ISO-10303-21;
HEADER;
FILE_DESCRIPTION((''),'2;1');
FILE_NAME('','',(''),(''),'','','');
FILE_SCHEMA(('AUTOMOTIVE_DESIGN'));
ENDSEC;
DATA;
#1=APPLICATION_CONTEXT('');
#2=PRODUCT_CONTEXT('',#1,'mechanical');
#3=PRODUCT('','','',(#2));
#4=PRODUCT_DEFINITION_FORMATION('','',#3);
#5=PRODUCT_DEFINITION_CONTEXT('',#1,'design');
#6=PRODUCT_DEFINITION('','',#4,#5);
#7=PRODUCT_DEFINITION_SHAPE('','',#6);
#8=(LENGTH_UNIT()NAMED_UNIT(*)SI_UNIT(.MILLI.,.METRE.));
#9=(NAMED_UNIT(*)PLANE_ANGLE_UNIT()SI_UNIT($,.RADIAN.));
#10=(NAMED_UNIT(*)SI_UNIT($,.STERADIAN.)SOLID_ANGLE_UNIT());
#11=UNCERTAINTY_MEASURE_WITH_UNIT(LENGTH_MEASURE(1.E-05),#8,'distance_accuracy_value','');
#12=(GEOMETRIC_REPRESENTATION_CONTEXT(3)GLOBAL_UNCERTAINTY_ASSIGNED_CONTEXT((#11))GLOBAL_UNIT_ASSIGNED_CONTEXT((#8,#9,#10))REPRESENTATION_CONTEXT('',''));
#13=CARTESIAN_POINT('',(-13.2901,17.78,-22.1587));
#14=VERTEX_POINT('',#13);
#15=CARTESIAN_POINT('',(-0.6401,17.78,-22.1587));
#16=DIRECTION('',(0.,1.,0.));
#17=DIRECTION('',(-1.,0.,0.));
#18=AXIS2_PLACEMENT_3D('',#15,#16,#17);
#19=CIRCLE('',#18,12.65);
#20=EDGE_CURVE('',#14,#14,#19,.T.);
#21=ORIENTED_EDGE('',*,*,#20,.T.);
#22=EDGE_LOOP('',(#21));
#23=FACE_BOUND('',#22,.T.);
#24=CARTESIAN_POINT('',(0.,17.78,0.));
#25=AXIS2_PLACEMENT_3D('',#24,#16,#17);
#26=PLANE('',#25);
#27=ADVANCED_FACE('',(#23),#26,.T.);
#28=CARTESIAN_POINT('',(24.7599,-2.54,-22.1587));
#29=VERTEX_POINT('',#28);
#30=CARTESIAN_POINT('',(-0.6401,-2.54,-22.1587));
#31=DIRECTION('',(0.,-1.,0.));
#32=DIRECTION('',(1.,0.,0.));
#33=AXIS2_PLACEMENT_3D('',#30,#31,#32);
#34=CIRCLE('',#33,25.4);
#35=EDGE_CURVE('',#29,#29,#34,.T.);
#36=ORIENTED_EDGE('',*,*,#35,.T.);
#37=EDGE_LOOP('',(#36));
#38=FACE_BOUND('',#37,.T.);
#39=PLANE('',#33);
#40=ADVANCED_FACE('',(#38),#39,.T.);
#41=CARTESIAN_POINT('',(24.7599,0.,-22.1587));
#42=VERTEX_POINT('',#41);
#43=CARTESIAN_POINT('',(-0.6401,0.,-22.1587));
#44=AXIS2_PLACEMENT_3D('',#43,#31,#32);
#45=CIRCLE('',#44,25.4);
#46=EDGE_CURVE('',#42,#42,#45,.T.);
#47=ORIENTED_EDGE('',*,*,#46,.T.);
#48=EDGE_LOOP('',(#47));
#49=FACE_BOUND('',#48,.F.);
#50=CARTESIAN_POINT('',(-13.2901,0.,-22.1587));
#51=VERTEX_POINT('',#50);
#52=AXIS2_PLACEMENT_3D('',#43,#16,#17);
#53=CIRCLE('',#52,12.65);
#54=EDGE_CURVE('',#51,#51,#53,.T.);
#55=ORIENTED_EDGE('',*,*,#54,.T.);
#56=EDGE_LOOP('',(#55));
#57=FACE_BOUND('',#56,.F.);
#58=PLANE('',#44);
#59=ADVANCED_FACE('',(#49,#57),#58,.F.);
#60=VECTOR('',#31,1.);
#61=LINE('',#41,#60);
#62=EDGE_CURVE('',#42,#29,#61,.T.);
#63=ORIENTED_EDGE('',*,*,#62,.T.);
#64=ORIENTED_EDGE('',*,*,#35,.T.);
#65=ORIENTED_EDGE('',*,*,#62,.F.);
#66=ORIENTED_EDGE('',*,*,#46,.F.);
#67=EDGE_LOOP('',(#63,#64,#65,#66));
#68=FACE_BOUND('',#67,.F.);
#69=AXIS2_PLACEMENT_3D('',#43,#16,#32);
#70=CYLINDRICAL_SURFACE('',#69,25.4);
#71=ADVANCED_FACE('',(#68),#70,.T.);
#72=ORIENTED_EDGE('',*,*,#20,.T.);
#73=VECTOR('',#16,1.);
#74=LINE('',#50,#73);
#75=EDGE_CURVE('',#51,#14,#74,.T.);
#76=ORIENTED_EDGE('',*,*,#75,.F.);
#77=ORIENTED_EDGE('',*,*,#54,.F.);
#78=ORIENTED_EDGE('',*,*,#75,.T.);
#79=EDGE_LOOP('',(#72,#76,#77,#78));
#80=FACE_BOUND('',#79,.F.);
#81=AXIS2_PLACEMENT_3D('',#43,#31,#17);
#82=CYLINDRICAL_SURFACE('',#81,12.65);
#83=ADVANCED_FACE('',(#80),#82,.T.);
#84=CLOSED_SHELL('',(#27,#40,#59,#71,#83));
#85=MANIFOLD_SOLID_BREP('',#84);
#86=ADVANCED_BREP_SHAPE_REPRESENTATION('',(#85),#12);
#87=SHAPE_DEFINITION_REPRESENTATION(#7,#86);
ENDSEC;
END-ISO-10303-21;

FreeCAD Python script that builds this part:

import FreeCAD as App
import Part
import Sketcher
from FreeCAD import Vector
Q = App.Units.Quantity

doc = App.newDocument("Part")
body = doc.addObject("PartDesign::Body", "Body")

# Sketch on XZ plane
sketch1 = body.newObject("Sketcher::SketchObject", "Sketch")
sketch1.AttachmentSupport = (doc.getObject("XZ_Plane"), [""])
sketch1.MapMode = "FlatFace"
sketch1.addGeometry(Part.Circle(Vector(-1, -22, 0), Vector(0, 0, 1), 13), False)
sketch1.addConstraint(Sketcher.Constraint("Diameter", 0, 25.3))
sketch1.addConstraint(Sketcher.Constraint("DistanceX", 0, 3, -1, 1, Q("0.0252 in")))
sketch1.addConstraint(Sketcher.Constraint("DistanceY", 0, 3, -1, 1, Q("0.8724 in")))
pad1 = body.newObject("PartDesign::Pad", "Pad")
pad1.Profile = sketch1
pad1.Length = Q("0.7 in")
pad1.Reversed = True

# Sketch on XZ plane
sketch2 = body.newObject("Sketcher::SketchObject", "Sketch001")
sketch2.AttachmentSupport = (doc.getObject("XZ_Plane"), [""])
sketch2.MapMode = "FlatFace"
sketch2.addGeometry(Part.Circle(Vector(-1, -22, 0), Vector(0, 0, 1), 25), False)
sketch2.addConstraint(Sketcher.Constraint("Diameter", 0, Q("2 in")))
sketch2.addConstraint(Sketcher.Constraint("DistanceX", 0, 3, -1, 1, Q("0.0252 in")))
sketch2.addConstraint(Sketcher.Constraint("DistanceY", 0, 3, -1, 1, Q("0.8724 in")))
pad2 = body.newObject("PartDesign::Pad", "Pad001")
pad2.Profile = sketch2
pad2.Length = Q("0.1 in")

doc.recompute()
